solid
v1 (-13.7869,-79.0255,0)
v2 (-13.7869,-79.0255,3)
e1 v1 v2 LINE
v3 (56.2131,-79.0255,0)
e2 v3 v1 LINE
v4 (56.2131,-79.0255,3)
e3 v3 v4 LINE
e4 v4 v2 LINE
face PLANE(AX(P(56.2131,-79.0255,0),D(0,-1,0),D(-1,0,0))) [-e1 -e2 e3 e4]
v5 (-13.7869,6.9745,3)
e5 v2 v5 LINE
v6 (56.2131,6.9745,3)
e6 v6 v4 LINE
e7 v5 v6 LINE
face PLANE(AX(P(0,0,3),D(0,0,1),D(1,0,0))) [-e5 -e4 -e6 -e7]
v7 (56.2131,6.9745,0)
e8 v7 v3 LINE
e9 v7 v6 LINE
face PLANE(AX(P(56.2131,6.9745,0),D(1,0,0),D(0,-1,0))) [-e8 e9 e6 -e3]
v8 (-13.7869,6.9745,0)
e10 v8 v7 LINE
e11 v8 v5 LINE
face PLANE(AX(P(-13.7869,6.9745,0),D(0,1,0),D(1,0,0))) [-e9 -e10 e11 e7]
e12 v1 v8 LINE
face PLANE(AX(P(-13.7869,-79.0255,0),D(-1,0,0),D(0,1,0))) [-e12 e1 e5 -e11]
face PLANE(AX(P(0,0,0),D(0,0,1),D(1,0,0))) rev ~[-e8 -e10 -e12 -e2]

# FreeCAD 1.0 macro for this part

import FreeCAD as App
import Part
import Sketcher
from FreeCAD import Vector
Q = App.Units.Quantity

doc = App.newDocument("Part")
body = doc.addObject("PartDesign::Body", "Body")

sketch1 = doc.addObject("Sketcher::SketchObject", "Sketch")
body.addObject(sketch1)
sketch1.AttachmentSupport = (doc.XY_Plane, [""])
sketch1.MapMode = "FlatFace"
sketch1.addGeometry(Part.LineSegment(Vector(56, 7, 0), Vector(-14, 7, 0)), False)
sketch1.addGeometry(Part.LineSegment(Vector(-14, 7, 0), Vector(-14, -79, 0)), False)
sketch1.addGeometry(Part.LineSegment(Vector(-14, -79, 0), Vector(56, -79, 0)), False)
sketch1.addGeometry(Part.LineSegment(Vector(56, -79, 0), Vector(56, 7, 0)), False)
sketch1.addConstraint(Sketcher.Constraint("Coincident", 0, 2, 1, 1))
sketch1.addConstraint(Sketcher.Constraint("Coincident", 1, 2, 2, 1))
sketch1.addConstraint(Sketcher.Constraint("Coincident", 2, 2, 3, 1))
sketch1.addConstraint(Sketcher.Constraint("Coincident", 3, 2, 0, 1))
sketch1.addConstraint(Sketcher.Constraint("Horizontal", 0))
sketch1.addConstraint(Sketcher.Constraint("Vertical", 1))
sketch1.addConstraint(Sketcher.Constraint("Horizontal", 2))
sketch1.addConstraint(Sketcher.Constraint("Vertical", 3))
sketch1.addConstraint(Sketcher.Constraint("DistanceX", 0, 2, 0, 1, Q("70 mm")))
sketch1.addConstraint(Sketcher.Constraint("DistanceY", 1, 2, 1, 1, Q("86 mm")))
sketch1.addConstraint(Sketcher.Constraint("DistanceX", 0, 2, -1, 1, Q("13.787 mm")))
sketch1.addConstraint(Sketcher.Constraint("DistanceY", -1, 1, 0, 2, Q("6.9745 mm")))
pad1 = doc.addObject("PartDesign::Pad", "Pad")
body.addObject(pad1)
pad1.Profile = sketch1
pad1.Length = 3

doc.recompute()
